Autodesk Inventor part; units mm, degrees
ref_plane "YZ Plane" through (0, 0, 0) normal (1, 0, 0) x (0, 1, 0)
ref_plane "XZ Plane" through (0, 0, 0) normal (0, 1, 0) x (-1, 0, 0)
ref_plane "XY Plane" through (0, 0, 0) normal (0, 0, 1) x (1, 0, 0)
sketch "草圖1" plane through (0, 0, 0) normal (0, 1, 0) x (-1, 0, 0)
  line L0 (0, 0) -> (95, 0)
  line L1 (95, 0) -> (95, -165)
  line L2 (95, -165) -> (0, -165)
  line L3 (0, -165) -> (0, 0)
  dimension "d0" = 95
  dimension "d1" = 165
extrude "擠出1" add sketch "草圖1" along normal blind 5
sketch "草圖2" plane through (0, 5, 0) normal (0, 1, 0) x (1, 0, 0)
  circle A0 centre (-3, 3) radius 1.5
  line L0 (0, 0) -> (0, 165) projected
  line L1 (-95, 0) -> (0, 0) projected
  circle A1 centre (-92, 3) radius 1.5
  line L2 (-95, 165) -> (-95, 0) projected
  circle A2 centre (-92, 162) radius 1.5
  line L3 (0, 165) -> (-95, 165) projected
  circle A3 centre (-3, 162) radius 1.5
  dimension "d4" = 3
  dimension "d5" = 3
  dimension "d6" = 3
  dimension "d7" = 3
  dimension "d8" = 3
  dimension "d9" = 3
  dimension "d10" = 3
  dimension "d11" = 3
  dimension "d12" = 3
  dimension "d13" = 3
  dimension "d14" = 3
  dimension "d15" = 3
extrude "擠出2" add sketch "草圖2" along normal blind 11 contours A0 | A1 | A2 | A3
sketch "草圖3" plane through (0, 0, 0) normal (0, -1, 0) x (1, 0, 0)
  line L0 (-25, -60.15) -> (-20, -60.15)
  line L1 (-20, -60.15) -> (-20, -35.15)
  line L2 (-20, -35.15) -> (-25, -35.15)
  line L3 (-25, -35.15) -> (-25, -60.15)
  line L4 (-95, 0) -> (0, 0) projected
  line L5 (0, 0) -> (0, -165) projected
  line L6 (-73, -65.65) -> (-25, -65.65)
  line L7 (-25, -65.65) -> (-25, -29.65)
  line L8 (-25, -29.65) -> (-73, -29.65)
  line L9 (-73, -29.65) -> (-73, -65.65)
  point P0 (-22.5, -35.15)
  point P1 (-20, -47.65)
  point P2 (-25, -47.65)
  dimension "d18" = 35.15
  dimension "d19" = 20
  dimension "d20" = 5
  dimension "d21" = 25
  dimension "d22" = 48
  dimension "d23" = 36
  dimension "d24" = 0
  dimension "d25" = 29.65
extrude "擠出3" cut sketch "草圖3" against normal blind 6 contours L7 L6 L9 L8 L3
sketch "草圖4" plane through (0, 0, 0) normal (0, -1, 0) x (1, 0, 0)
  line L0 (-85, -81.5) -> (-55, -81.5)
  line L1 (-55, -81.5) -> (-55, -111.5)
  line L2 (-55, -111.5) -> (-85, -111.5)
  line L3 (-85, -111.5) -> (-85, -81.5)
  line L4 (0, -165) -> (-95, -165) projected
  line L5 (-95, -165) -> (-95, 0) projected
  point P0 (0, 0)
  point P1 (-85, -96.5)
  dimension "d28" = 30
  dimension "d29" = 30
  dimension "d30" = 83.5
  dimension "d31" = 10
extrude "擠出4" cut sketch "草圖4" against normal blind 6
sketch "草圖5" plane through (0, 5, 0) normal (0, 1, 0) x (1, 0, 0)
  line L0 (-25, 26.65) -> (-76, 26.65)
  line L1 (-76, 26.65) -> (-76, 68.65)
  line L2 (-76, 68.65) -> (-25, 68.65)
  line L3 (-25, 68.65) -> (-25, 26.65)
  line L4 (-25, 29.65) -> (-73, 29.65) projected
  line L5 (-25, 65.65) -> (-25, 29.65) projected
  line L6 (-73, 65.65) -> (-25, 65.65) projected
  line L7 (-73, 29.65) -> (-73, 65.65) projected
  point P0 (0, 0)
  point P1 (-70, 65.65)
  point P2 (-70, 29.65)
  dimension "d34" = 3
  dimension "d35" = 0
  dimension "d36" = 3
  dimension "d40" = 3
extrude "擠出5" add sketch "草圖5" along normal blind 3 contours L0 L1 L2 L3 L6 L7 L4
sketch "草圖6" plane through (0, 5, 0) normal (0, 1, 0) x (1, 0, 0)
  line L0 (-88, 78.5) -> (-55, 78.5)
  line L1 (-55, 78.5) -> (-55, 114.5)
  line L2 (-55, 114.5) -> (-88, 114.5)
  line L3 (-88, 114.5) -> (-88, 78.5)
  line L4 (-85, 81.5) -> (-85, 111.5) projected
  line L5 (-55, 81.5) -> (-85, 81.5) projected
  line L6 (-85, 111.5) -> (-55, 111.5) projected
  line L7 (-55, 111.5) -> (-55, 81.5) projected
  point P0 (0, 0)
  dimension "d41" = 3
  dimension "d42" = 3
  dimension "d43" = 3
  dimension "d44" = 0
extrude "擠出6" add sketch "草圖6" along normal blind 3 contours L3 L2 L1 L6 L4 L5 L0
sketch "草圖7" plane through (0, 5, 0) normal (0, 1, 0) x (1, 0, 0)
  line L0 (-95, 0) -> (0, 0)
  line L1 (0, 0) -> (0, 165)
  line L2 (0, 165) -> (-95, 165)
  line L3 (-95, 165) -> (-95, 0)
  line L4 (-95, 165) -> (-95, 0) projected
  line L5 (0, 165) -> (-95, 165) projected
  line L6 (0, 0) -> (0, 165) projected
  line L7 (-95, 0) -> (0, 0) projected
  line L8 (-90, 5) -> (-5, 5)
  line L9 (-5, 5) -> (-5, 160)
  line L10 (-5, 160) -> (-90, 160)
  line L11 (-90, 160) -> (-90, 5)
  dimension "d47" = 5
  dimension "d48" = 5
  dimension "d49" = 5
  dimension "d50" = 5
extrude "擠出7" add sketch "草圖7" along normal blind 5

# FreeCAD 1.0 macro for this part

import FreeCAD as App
import Part
import Sketcher
from FreeCAD import Vector
Q = App.Units.Quantity


def add_polygon(sketch, points):
    """Adds a closed chain of lines whose ends are joined by coincident constraints."""
    first, n = sketch.GeometryCount, len(points)
    for a, b in zip(points, points[1:] + points[:1]):
        sketch.addGeometry(Part.LineSegment(App.Vector(*a, 0), App.Vector(*b, 0)), False)
    for i in range(n):
        sketch.addConstraint(Sketcher.Constraint("Coincident", first + i, 2, first + (i + 1) % n, 1))

doc = App.newDocument("Part")
body = doc.addObject("PartDesign::Body", "Body")

# Sketch on XZ plane
sketch1 = body.newObject("Sketcher::SketchObject", "Sketch")
sketch1.AttachmentSupport = (doc.getObject("XZ_Plane"), [""])
sketch1.MapMode = "FlatFace"
add_polygon(sketch1, [(-95, 0), (0, 0), (0, -165), (-95, -165)])  # lines 0-3
sketch1.addConstraint([
    Sketcher.Constraint("Horizontal", 0),
    Sketcher.Constraint("Vertical", 1),
    Sketcher.Constraint("Horizontal", 2),
    Sketcher.Constraint("Vertical", 3),
    Sketcher.Constraint("Coincident", 0, 2, -1, 1),
    Sketcher.Constraint("DistanceX", 0, 1, 0, 2, Q("95 mm")),
    Sketcher.Constraint("DistanceY", 1, 2, 1, 1, Q("165 mm")),
])
pad1 = body.newObject("PartDesign::Pad", "Pad")
pad1.Profile = sketch1
pad1.Length = 5
pad1.Reversed = True

# Sketch on XZ plane
sketch2 = body.newObject("Sketcher::SketchObject", "Sketch001")
sketch2.AttachmentSupport = (doc.getObject("XZ_Plane"), [""])
sketch2.MapMode = "FlatFace"
sketch2.AttachmentOffset = App.Placement(Vector(0, 0, -5), App.Rotation())
sketch2.addGeometry([
    Part.Circle(Vector(-3, -3, 0), Vector(0, 0, 1), 1.5),
    Part.Circle(Vector(-92, -3, 0), Vector(0, 0, 1), 1.5),
    Part.Circle(Vector(-92, -162, 0), Vector(0, 0, 1), 1.5),
    Part.Circle(Vector(-3, -162, 0), Vector(0, 0, 1), 1.5),
], False)
sketch2.addConstraint([
    Sketcher.Constraint("Equal", 0, 1),
    Sketcher.Constraint("Equal", 1, 2),
    Sketcher.Constraint("Equal", 2, 3),
    Sketcher.Constraint("Horizontal", 0, 3, 1, 3),
    Sketcher.Constraint("Horizontal", 2, 3, 3, 3),
    Sketcher.Constraint("Vertical", 1, 3, 2, 3),
    Sketcher.Constraint("Vertical", 0, 3, 3, 3),
    Sketcher.Constraint("Diameter", 0, Q("3 mm")),
    Sketcher.Constraint("DistanceX", 0, 3, -1, 1, Q("3 mm")),
    Sketcher.Constraint("DistanceY", 0, 3, -1, 1, Q("3 mm")),
    Sketcher.Constraint("DistanceX", 1, 3, -1, 1, Q("92 mm")),
    Sketcher.Constraint("DistanceY", 2, 3, -1, 1, Q("162 mm")),
])
pad2 = body.newObject("PartDesign::Pad", "Pad001")
pad2.Profile = sketch2
pad2.Length = 11
pad2.Reversed = True

# Sketch on XZ plane
sketch3 = body.newObject("Sketcher::SketchObject", "Sketch002")
sketch3.AttachmentSupport = (doc.getObject("XZ_Plane"), [""])
sketch3.MapMode = "FlatFace"
add_polygon(sketch3, [(-25, -65.65), (-25, -29.65), (-73, -29.65), (-73, -65.65)])  # lines 0-3
sketch3.addConstraint([
    Sketcher.Constraint("Vertical", 0),
    Sketcher.Constraint("Horizontal", 1),
    Sketcher.Constraint("Vertical", 2),
    Sketcher.Constraint("Horizontal", 3),
    Sketcher.Constraint("DistanceX", 1, 2, 1, 1, Q("48 mm")),
    Sketcher.Constraint("DistanceY", 0, 1, 0, 2, Q("36 mm")),
    Sketcher.Constraint("DistanceX", 0, 2, -1, 1, Q("25 mm")),
    Sketcher.Constraint("DistanceY", 0, 2, -1, 1, Q("29.65 mm")),
])
pocket1 = body.newObject("PartDesign::Pocket", "Pocket")
pocket1.Profile = sketch3
pocket1.Length = 6

# Sketch on XZ plane
sketch4 = body.newObject("Sketcher::SketchObject", "Sketch003")
sketch4.AttachmentSupport = (doc.getObject("XZ_Plane"), [""])
sketch4.MapMode = "FlatFace"
add_polygon(sketch4, [(-55, -81.5), (-85, -81.5), (-85, -111.5), (-55, -111.5)])  # lines 0-3
sketch4.addConstraint([
    Sketcher.Constraint("Horizontal", 0),
    Sketcher.Constraint("Vertical", 1),
    Sketcher.Constraint("Horizontal", 2),
    Sketcher.Constraint("Vertical", 3),
    Sketcher.Constraint("Equal", 2, 1),
    Sketcher.Constraint("DistanceX", 0, 2, 0, 1, Q("30 mm")),
    Sketcher.Constraint("DistanceX", 0, 2, -1, 1, Q("85 mm")),
    Sketcher.Constraint("DistanceY", 0, 2, -1, 1, Q("81.5 mm")),
])
pocket2 = body.newObject("PartDesign::Pocket", "Pocket001")
pocket2.Profile = sketch4
pocket2.Length = 6

# Sketch on XZ plane
sketch5 = body.newObject("Sketcher::SketchObject", "Sketch004")
sketch5.AttachmentSupport = (doc.getObject("XZ_Plane"), [""])
sketch5.MapMode = "FlatFace"
sketch5.AttachmentOffset = App.Placement(Vector(0, 0, -5), App.Rotation())
add_polygon(sketch5, [(-76, -26.65), (-25, -26.65), (-25, -29.65), (-73, -29.65), (-73, -65.65), (-25, -65.65), (-25, -68.65), (-76, -68.65)])  # lines 0-7
sketch5.addConstraint([
    Sketcher.Constraint("Horizontal", 0),
    Sketcher.Constraint("Vertical", 1),
    Sketcher.Constraint("Horizontal", 2),
    Sketcher.Constraint("Vertical", 3),
    Sketcher.Constraint("Horizontal", 4),
    Sketcher.Constraint("Vertical", 5),
    Sketcher.Constraint("Horizontal", 6),
    Sketcher.Constraint("Vertical", 7),
    Sketcher.Constraint("Vertical", 1, 2, 4, 2),
    Sketcher.Constraint("Equal", 1, 5),
    Sketcher.Constraint("DistanceY", 1, 2, 1, 1, Q("3 mm")),
    Sketcher.Constraint("DistanceX", 6, 2, 3, 2, Q("3 mm")),
    Sketcher.Constraint("DistanceX", 0, 1, 0, 2, Q("51 mm")),
    Sketcher.Constraint("DistanceY", 3, 2, 3, 1, Q("36 mm")),
    Sketcher.Constraint("DistanceX", 0, 2, -1, 1, Q("25 mm")),
    Sketcher.Constraint("DistanceY", 0, 2, -1, 1, Q("26.65 mm")),
])
pad3 = body.newObject("PartDesign::Pad", "Pad002")
pad3.Profile = sketch5
pad3.Length = 3
pad3.Reversed = True

# Sketch on XZ plane
sketch6 = body.newObject("Sketcher::SketchObject", "Sketch005")
sketch6.AttachmentSupport = (doc.getObject("XZ_Plane"), [""])
sketch6.MapMode = "FlatFace"
sketch6.AttachmentOffset = App.Placement(Vector(0, 0, -5), App.Rotation())
add_polygon(sketch6, [(-88, -114.5), (-88, -78.5), (-55, -78.5), (-55, -81.5), (-85, -81.5), (-85, -111.5), (-55, -111.5), (-55, -114.5)])  # lines 0-7
sketch6.addConstraint([
    Sketcher.Constraint("Vertical", 0),
    Sketcher.Constraint("Horizontal", 1),
    Sketcher.Constraint("Vertical", 2),
    Sketcher.Constraint("Horizontal", 3),
    Sketcher.Constraint("Vertical", 4),
    Sketcher.Constraint("Horizontal", 5),
    Sketcher.Constraint("Vertical", 6),
    Sketcher.Constraint("Horizontal", 7),
    Sketcher.Constraint("Vertical", 2, 2, 5, 2),
    Sketcher.Constraint("Equal", 5, 4),
    Sketcher.Constraint("Equal", 2, 6),
    Sketcher.Constraint("DistanceY", 2, 2, 2, 1, Q("3 mm")),
    Sketcher.Constraint("DistanceX", 0, 2, 3, 2, Q("3 mm")),
    Sketcher.Constraint("DistanceX", 1, 1, 1, 2, Q("33 mm")),
    Sketcher.Constraint("DistanceX", 0, 2, -1, 1, Q("88 mm")),
    Sketcher.Constraint("DistanceY", 0, 2, -1, 1, Q("78.5 mm")),
])
pad4 = body.newObject("PartDesign::Pad", "Pad003")
pad4.Profile = sketch6
pad4.Length = 3
pad4.Reversed = True

# Sketch on XZ plane
sketch7 = body.newObject("Sketcher::SketchObject", "Sketch006")
sketch7.AttachmentSupport = (doc.getObject("XZ_Plane"), [""])
sketch7.MapMode = "FlatFace"
sketch7.AttachmentOffset = App.Placement(Vector(0, 0, -5), App.Rotation())
add_polygon(sketch7, [(-95, -165), (-95, 0), (0, 0), (0, -165)])  # lines 0-3
add_polygon(sketch7, [(-5, -5), (-90, -5), (-90, -160), (-5, -160)])  # lines 4-7
sketch7.addConstraint([
    Sketcher.Constraint("Vertical", 0),
    Sketcher.Constraint("Horizontal", 1),
    Sketcher.Constraint("Vertical", 2),
    Sketcher.Constraint("Horizontal", 3),
    Sketcher.Constraint("Horizontal", 4),
    Sketcher.Constraint("Vertical", 5),
    Sketcher.Constraint("Horizontal", 6),
    Sketcher.Constraint("Vertical", 7),
    Sketcher.Constraint("Coincident", 1, 2, -1, 1),
    Sketcher.Constraint("DistanceY", 4, 2, -1, 1, Q("5 mm")),
    Sketcher.Constraint("DistanceX", 6, 2, -1, 1, Q("5 mm")),
    Sketcher.Constraint("DistanceX", 0, 2, 4, 2, Q("5 mm")),
    Sketcher.Constraint("DistanceY", 3, 2, 5, 2, Q("5 mm")),
    Sketcher.Constraint("DistanceX", 1, 1, 1, 2, Q("95 mm")),
    Sketcher.Constraint("DistanceY", 0, 1, 0, 2, Q("165 mm")),
])
pad5 = body.newObject("PartDesign::Pad", "Pad004")
pad5.Profile = sketch7
pad5.Length = 5
pad5.Reversed = True

doc.recompute()
